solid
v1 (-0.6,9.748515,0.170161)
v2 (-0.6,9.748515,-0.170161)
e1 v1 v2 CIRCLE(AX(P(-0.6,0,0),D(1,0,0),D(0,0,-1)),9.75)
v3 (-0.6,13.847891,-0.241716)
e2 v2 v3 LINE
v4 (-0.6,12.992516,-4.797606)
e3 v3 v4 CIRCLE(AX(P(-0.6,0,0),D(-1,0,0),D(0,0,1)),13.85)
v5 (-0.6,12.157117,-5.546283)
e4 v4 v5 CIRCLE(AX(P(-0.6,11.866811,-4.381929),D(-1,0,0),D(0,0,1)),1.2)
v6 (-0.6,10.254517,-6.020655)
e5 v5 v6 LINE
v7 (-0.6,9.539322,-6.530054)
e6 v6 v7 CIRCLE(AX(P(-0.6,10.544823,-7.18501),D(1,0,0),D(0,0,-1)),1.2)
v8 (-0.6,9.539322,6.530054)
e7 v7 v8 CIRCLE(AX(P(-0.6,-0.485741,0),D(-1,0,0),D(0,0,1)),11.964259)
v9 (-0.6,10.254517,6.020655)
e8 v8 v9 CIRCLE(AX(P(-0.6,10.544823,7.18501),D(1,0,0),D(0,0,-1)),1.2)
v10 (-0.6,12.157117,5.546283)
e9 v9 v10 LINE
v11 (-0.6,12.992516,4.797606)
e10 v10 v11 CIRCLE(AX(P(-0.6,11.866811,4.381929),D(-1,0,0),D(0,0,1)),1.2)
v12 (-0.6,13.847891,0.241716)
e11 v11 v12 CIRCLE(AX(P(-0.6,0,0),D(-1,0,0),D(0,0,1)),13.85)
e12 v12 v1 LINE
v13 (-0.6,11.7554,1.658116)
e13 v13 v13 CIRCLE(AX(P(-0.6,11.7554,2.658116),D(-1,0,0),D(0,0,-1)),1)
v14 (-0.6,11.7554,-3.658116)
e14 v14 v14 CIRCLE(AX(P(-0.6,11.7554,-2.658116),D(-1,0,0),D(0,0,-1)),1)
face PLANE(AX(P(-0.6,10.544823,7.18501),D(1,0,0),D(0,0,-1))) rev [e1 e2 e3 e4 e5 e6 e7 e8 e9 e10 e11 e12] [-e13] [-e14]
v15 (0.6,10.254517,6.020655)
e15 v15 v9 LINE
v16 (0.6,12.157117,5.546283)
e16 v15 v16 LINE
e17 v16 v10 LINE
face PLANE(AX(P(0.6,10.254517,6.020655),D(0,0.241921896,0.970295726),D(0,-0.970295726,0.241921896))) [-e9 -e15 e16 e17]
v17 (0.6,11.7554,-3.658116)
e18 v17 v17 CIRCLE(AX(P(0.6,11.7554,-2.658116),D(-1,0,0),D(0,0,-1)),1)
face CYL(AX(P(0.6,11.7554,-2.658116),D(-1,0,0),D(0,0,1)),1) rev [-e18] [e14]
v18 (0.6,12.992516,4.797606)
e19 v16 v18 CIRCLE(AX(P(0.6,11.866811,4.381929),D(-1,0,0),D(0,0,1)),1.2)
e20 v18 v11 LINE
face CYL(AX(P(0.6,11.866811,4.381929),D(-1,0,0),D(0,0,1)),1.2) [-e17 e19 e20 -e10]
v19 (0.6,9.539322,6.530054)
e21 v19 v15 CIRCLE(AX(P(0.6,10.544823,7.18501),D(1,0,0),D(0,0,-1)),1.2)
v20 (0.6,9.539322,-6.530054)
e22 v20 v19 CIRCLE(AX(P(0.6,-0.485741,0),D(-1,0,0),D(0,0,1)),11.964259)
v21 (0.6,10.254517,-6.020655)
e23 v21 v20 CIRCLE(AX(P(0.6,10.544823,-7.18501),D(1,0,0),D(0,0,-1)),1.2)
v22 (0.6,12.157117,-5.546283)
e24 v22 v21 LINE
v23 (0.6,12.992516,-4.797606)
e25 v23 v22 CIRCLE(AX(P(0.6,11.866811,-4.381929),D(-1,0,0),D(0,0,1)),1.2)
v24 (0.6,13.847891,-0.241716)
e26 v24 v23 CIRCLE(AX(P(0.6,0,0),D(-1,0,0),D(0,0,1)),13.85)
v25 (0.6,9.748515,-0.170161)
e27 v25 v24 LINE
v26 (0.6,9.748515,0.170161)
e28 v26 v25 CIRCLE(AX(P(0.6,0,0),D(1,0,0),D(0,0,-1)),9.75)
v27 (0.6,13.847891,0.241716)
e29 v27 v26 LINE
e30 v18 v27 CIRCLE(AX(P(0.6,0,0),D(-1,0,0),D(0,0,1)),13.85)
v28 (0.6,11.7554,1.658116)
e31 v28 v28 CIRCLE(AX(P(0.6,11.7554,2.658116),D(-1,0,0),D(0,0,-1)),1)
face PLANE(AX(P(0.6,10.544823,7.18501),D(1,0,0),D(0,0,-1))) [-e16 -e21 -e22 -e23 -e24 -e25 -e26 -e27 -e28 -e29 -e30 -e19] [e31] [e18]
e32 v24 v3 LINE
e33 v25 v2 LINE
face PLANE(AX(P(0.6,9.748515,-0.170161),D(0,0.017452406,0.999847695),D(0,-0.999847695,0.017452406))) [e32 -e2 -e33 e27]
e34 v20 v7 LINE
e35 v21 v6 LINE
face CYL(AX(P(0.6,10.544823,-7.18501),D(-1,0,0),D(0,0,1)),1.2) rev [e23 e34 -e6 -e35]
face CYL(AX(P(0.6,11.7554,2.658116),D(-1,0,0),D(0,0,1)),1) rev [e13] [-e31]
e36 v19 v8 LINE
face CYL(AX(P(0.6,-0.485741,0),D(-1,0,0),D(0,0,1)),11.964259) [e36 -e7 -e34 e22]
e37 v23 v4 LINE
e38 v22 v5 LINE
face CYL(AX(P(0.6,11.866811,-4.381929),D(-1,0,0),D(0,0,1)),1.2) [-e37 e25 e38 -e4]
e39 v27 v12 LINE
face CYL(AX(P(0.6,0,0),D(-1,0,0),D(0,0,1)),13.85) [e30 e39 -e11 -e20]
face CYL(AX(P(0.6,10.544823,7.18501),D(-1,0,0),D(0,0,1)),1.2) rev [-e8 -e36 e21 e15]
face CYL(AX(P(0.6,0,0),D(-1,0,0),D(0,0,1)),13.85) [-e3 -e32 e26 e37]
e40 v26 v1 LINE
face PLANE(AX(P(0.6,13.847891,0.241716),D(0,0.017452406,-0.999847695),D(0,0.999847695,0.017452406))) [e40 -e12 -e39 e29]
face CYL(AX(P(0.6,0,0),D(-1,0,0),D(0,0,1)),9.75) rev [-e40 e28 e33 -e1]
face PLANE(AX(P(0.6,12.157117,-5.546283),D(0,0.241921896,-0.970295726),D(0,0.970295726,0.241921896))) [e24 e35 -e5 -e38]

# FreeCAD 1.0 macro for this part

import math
import FreeCAD as App
import Part
import Sketcher
from FreeCAD import Vector
Q = App.Units.Quantity

doc = App.newDocument("Part")
body = doc.addObject("PartDesign::Body", "Body")

# Sketch on YZ plane
sketch1 = body.newObject("Sketcher::SketchObject", "Sketch")
sketch1.AttachmentSupport = (doc.getObject("YZ_Plane"), [""])
sketch1.MapMode = "FlatFace"
sketch1.AttachmentOffset = App.Placement(Vector(0, 0, -0.6), App.Rotation())
sketch1.addGeometry([
    Part.LineSegment(Vector(10.25, 6.02, 0), Vector(12.16, 5.55, 0)),  # 0
    Part.ArcOfCircle(Part.Circle(Vector(11.87, 4.38, 0), Vector(0, 0, 1), 1.2), math.radians(20), math.radians(76)),  # 1
    Part.ArcOfCircle(Part.Circle(Vector(0, 0, 0), Vector(0, 0, 1), 13.85), math.radians(1), math.radians(20.27)),  # 2
    Part.LineSegment(Vector(13.85, 0.24, 0), Vector(9.75, 0.17, 0)),  # 3
    Part.ArcOfCircle(Part.Circle(Vector(0, 0, 0), Vector(0, 0, 1), 9.75), math.radians(1), math.radians(359)),  # 4
    Part.LineSegment(Vector(9.75, -0.17, 0), Vector(13.85, -0.24, 0)),  # 5
    Part.ArcOfCircle(Part.Circle(Vector(0, 0, 0), Vector(0, 0, 1), 13.85), math.radians(-20.27), math.radians(-1)),  # 6
    Part.ArcOfCircle(Part.Circle(Vector(11.87, -4.38, 0), Vector(0, 0, 1), 1.2), math.radians(-76), math.radians(-20)),  # 7
    Part.LineSegment(Vector(12.16, -5.55, 0), Vector(10.25, -6.02, 0)),  # 8
    Part.ArcOfCircle(Part.Circle(Vector(10.54, -7.19, 0), Vector(0, 0, 1), 1.2), math.radians(104), math.radians(147)),  # 9
    Part.ArcOfCircle(Part.Circle(Vector(-0.49, 0, 0), Vector(0, 0, 1), 11.96), math.radians(33), math.radians(327)),  # 10
    Part.ArcOfCircle(Part.Circle(Vector(10.54, 7.19, 0), Vector(0, 0, 1), 1.2), math.radians(-147), math.radians(-104)),  # 11
    Part.Circle(Vector(11.76, -2.66, 0), Vector(0, 0, 1), 1),  # 12
    Part.Circle(Vector(11.76, 2.66, 0), Vector(0, 0, 1), 1),  # 13
], False)
sketch1.addConstraint([
    Sketcher.Constraint("Tangent", 0, 2, 1, 2),
    Sketcher.Constraint("Tangent", 1, 1, 2, 2),
    Sketcher.Constraint("Coincident", 2, 1, 3, 1),
    Sketcher.Constraint("Coincident", 3, 2, 4, 1),
    Sketcher.Constraint("Coincident", 4, 2, 5, 1),
    Sketcher.Constraint("Coincident", 5, 2, 6, 2),
    Sketcher.Constraint("Tangent", 6, 1, 7, 2),
    Sketcher.Constraint("Tangent", 7, 1, 8, 1),
    Sketcher.Constraint("Tangent", 8, 2, 9, 1),
    Sketcher.Constraint("Tangent", 9, 2, 10, 2),
    Sketcher.Constraint("Tangent", 10, 1, 11, 1),
    Sketcher.Constraint("Tangent", 11, 2, 0, 1),
    Sketcher.Constraint("Coincident", 2, 3, -1, 1),
    Sketcher.Constraint("Coincident", 4, 3, -1, 1),
    Sketcher.Constraint("Coincident", 6, 3, -1, 1),
    Sketcher.Constraint("Equal", 2, 6),
    Sketcher.Constraint("Equal", 1, 7),
    Sketcher.Constraint("Equal", 7, 9),
    Sketcher.Constraint("Equal", 9, 11),
    Sketcher.Constraint("Equal", 12, 13),
    Sketcher.Constraint("Symmetric", 9, 3, 11, 3, -1),
    Sketcher.Constraint("Symmetric", 12, 3, 13, 3, -1),
    Sketcher.Constraint("Vertical", 1, 3, 7, 3),
    Sketcher.Constraint("Vertical", 3, 2, 4, 2),
    Sketcher.Constraint("Vertical", 2, 1, 5, 2),
    Sketcher.Constraint("Diameter", 12, 2.0),
    Sketcher.Constraint("Radius", 1, 1.2),
    Sketcher.Constraint("Angle", 0, Q("-14 deg")),
    Sketcher.Constraint("Angle", 3, Q("-179 deg")),
    Sketcher.Constraint("Radius", 2, 13.85),
    Sketcher.Constraint("Radius", 4, 9.75),
    Sketcher.Constraint("Radius", 10, 11.964259),
    Sketcher.Constraint("DistanceX", 8, 2, 6, 1, 2.737999),
    Sketcher.Constraint("DistanceX", -1, 1, 12, 3, 11.7554),
    Sketcher.Constraint("DistanceY", 12, 3, 0, 2, 8.204399),
    Sketcher.Constraint("DistanceX", 0, 2, 1, 1, 0.835399),
    Sketcher.Constraint("DistanceY", 2, 1, 13, 3, 2.4164),
])
pad1 = body.newObject("PartDesign::Pad", "Pad")
pad1.Profile = sketch1
pad1.Length = 1.2

doc.recompute()
